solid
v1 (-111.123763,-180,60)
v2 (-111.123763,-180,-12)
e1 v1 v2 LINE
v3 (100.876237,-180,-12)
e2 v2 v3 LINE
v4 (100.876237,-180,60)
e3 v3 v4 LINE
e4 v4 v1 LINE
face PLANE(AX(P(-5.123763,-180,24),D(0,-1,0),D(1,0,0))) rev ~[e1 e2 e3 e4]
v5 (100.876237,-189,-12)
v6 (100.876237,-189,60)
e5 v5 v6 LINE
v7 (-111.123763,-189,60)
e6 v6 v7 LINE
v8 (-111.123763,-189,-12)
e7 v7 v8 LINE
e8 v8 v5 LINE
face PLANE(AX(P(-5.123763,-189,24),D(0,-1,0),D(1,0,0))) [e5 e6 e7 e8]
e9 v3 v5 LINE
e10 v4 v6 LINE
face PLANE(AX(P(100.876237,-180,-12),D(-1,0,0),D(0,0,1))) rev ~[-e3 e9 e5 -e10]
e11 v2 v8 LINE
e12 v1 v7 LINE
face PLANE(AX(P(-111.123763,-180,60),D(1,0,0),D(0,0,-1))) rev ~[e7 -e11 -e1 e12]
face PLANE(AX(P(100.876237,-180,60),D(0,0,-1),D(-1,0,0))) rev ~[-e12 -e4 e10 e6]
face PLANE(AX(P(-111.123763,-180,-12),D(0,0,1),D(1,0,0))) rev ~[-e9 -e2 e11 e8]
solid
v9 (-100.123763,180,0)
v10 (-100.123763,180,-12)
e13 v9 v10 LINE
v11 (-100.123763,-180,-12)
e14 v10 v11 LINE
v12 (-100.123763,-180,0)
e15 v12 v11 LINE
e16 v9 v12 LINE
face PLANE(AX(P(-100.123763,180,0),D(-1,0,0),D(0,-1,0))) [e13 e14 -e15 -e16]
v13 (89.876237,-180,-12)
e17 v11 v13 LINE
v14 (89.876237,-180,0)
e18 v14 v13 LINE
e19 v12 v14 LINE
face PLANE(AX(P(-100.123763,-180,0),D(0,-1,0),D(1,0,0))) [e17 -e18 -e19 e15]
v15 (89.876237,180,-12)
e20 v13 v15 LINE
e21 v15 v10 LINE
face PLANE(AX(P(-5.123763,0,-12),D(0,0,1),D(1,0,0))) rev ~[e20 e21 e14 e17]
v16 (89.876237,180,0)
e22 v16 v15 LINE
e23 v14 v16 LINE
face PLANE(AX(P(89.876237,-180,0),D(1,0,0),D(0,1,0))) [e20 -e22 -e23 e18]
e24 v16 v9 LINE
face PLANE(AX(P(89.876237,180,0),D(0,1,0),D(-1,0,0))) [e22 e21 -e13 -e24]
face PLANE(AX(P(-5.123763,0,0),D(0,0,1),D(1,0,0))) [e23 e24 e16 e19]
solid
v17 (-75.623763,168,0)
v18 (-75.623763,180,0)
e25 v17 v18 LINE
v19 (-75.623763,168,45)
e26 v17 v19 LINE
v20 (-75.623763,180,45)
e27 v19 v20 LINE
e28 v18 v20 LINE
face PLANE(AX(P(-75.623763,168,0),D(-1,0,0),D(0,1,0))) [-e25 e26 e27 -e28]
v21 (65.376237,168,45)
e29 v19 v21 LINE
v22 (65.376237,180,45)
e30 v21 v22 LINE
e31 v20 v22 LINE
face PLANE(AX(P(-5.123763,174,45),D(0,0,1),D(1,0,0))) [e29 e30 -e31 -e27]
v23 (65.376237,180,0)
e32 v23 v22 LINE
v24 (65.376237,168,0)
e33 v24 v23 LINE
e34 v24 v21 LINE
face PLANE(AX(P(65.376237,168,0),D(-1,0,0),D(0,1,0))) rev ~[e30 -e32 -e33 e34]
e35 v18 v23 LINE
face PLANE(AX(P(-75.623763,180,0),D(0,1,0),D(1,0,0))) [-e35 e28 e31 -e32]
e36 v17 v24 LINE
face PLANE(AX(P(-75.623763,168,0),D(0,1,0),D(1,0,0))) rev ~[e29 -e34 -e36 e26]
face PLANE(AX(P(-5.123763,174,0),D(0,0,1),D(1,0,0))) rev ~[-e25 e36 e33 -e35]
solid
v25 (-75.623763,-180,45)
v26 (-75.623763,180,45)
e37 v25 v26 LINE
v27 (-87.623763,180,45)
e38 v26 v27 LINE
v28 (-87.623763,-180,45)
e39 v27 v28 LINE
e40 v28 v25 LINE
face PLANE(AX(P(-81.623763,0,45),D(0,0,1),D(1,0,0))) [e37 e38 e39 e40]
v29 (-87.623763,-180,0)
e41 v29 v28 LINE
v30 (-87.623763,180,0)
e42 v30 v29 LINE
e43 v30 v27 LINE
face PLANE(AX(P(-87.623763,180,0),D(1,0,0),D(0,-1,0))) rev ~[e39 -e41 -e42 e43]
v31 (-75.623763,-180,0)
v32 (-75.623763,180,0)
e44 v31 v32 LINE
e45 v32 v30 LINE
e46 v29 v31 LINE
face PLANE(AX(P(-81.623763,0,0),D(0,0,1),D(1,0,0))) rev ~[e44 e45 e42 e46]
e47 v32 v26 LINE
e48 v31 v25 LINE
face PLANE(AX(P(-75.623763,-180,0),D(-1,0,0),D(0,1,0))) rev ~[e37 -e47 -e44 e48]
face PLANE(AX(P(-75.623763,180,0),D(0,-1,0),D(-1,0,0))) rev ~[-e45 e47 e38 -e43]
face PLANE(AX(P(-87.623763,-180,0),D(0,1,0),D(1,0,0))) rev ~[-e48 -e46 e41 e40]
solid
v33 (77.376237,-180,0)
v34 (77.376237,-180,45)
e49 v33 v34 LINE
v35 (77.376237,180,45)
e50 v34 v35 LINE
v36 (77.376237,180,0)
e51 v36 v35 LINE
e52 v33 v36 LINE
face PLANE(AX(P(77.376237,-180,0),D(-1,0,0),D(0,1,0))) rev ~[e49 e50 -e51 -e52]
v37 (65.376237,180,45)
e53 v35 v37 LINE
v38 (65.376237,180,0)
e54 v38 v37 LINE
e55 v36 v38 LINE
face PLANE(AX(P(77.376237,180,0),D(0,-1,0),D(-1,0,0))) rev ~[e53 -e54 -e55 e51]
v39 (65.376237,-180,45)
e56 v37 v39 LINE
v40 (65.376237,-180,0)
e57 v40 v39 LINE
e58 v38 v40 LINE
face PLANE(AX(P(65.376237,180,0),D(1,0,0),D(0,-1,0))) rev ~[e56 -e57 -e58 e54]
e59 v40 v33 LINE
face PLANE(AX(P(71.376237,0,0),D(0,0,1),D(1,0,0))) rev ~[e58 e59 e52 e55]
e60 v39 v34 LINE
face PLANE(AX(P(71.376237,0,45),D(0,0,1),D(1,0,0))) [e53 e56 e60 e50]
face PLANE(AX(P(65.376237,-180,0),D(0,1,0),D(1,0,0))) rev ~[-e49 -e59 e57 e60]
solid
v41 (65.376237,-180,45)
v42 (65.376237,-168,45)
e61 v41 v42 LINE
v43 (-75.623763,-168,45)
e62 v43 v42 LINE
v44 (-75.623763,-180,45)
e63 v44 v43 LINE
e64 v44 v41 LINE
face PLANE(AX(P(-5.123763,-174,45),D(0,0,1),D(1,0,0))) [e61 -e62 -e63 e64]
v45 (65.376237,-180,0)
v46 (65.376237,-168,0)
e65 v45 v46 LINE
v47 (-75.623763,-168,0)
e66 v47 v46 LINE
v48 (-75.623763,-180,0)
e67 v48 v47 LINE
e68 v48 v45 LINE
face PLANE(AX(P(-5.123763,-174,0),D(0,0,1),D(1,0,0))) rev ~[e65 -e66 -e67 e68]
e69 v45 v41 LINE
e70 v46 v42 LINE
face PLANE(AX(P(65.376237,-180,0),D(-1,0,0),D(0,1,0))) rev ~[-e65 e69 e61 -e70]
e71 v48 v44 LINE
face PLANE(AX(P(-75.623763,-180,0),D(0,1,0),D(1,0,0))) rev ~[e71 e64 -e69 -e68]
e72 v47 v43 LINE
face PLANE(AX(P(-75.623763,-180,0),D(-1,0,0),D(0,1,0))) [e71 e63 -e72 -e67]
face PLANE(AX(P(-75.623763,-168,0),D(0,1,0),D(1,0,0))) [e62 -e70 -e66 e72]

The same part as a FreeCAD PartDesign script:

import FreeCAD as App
import Part
import Sketcher


def add_polygon(sketch, points):
    """Adds a closed chain of lines whose ends are joined by coincident constraints."""
    first, n = sketch.GeometryCount, len(points)
    for a, b in zip(points, points[1:] + points[:1]):
        sketch.addGeometry(Part.LineSegment(App.Vector(*a, 0), App.Vector(*b, 0)), False)
    for i in range(n):
        sketch.addConstraint(Sketcher.Constraint("Coincident", first + i, 2, first + (i + 1) % n, 1))

doc = App.newDocument("Part")
body = doc.addObject("PartDesign::Body", "Body")
body.AllowCompound = True

# Sketch on XY plane
sketch1 = body.newObject("Sketcher::SketchObject", "Sketch")
sketch1.AttachmentSupport = (doc.getObject("XY_Plane"), [""])
sketch1.MapMode = "FlatFace"
add_polygon(sketch1, [(65.376237, -180), (77.376237, -180), (77.376237, 180), (65.376237, 180)])  # lines 0-3
add_polygon(sketch1, [(-87.623763, -180), (-75.623763, -180), (-75.623763, 180), (-87.623763, 180)])  # lines 4-7
sketch1.addConstraint([
    Sketcher.Constraint("Horizontal", 0),
    Sketcher.Constraint("Vertical", 1),
    Sketcher.Constraint("Horizontal", 2),
    Sketcher.Constraint("Vertical", 3),
    Sketcher.Constraint("Horizontal", 4),
    Sketcher.Constraint("Vertical", 5),
    Sketcher.Constraint("Horizontal", 6),
    Sketcher.Constraint("Vertical", 7),
    Sketcher.Constraint("Horizontal", 3, 2, 4, 2),
    Sketcher.Constraint("Horizontal", 2, 2, 5, 2),
    Sketcher.Constraint("Equal", 2, 4),
    Sketcher.Constraint("DistanceX", 0, 1, 0, 2, 12.0),
    Sketcher.Constraint("DistanceY", 1, 1, 1, 2, 360.0),
    Sketcher.Constraint("DistanceY", 0, 2, -1, 1, 180.0),
    Sketcher.Constraint("DistanceX", 4, 2, 3, 2, 141.0),
    Sketcher.Constraint("DistanceX", -1, 1, 0, 2, 77.376237),
])
pad1 = body.newObject("PartDesign::Pad", "Pad")
pad1.Profile = sketch1
pad1.Length = 45
body2 = doc.addObject("PartDesign::Body", "Body001")
body2.AllowCompound = True

# Sketch on XY plane
sketch2 = body2.newObject("Sketcher::SketchObject", "Sketch001")
sketch2.AttachmentSupport = (doc.getObject("XY_Plane001"), [""])
sketch2.MapMode = "FlatFace"
add_polygon(sketch2, [(-75.623763, 180), (-75.623763, 168), (65.376237, 168), (65.376237, 180)])  # lines 0-3
add_polygon(sketch2, [(-75.623763, -168), (-75.623763, -180), (65.376237, -180), (65.376237, -168)])  # lines 4-7
sketch2.addConstraint([
    Sketcher.Constraint("Vertical", 0),
    Sketcher.Constraint("Horizontal", 1),
    Sketcher.Constraint("Vertical", 2),
    Sketcher.Constraint("Horizontal", 3),
    Sketcher.Constraint("Vertical", 4),
    Sketcher.Constraint("Horizontal", 5),
    Sketcher.Constraint("Vertical", 6),
    Sketcher.Constraint("Horizontal", 7),
    Sketcher.Constraint("Symmetric", 3, 2, 4, 2, -1),
    Sketcher.Constraint("Symmetric", 1, 2, 6, 2, -1),
    Sketcher.Constraint("DistanceX", 1, 1, 1, 2, 141.0),
    Sketcher.Constraint("DistanceY", 0, 2, 0, 1, 12.0),
    Sketcher.Constraint("DistanceY", -1, 1, 0, 2, 168.0),
    Sketcher.Constraint("DistanceX", 0, 2, -1, 1, 75.623763),
])
pad2 = body2.newObject("PartDesign::Pad", "Pad001")
pad2.Profile = sketch2
pad2.Length = 45
body3 = doc.addObject("PartDesign::Body", "Body002")

# Sketch on XY plane
sketch3 = body3.newObject("Sketcher::SketchObject", "Sketch002")
sketch3.AttachmentSupport = (doc.getObject("XY_Plane002"), [""])
sketch3.MapMode = "FlatFace"
add_polygon(sketch3, [(89.876237, -180), (89.876237, 180), (-100.123763, 180), (-100.123763, -180)])  # lines 0-3
sketch3.addConstraint([
    Sketcher.Constraint("Vertical", 0),
    Sketcher.Constraint("Horizontal", 1),
    Sketcher.Constraint("Vertical", 2),
    Sketcher.Constraint("Horizontal", 3),
    Sketcher.Constraint("DistanceX", 1, 2, 1, 1, 190.0),
    Sketcher.Constraint("DistanceY", 0, 1, 0, 2, 360.0),
    Sketcher.Constraint("DistanceY", -1, 1, 0, 2, 180.0),
    Sketcher.Constraint("DistanceX", -1, 1, 0, 2, 89.876237),
])
pad3 = body3.newObject("PartDesign::Pad", "Pad002")
pad3.Profile = sketch3
pad3.Length = 12
pad3.Reversed = True
body4 = doc.addObject("PartDesign::Body", "Body003")

# Sketch on XZ plane
sketch4 = body4.newObject("Sketcher::SketchObject", "Sketch003")
sketch4.AttachmentSupport = (doc.getObject("XZ_Plane003"), [""])
sketch4.MapMode = "FlatFace"
sketch4.AttachmentOffset = App.Placement(App.Vector(0, 0, 180), App.Rotation())
add_polygon(sketch4, [(100.876237, -12), (100.876237, 60), (-111.123763, 60), (-111.123763, -12)])  # lines 0-3
sketch4.addConstraint([
    Sketcher.Constraint("Vertical", 0),
    Sketcher.Constraint("Horizontal", 1),
    Sketcher.Constraint("Vertical", 2),
    Sketcher.Constraint("Horizontal", 3),
    Sketcher.Constraint("DistanceX", 1, 2, 1, 1, 212.0),
    Sketcher.Constraint("DistanceY", 0, 1, 0, 2, 72.0),
    Sketcher.Constraint("DistanceY", -1, 1, 0, 2, 60.0),
    Sketcher.Constraint("DistanceX", -1, 1, 0, 2, 100.876237),
])
pad4 = body4.newObject("PartDesign::Pad", "Pad003")
pad4.Profile = sketch4
pad4.Length = 9

doc.recompute()
